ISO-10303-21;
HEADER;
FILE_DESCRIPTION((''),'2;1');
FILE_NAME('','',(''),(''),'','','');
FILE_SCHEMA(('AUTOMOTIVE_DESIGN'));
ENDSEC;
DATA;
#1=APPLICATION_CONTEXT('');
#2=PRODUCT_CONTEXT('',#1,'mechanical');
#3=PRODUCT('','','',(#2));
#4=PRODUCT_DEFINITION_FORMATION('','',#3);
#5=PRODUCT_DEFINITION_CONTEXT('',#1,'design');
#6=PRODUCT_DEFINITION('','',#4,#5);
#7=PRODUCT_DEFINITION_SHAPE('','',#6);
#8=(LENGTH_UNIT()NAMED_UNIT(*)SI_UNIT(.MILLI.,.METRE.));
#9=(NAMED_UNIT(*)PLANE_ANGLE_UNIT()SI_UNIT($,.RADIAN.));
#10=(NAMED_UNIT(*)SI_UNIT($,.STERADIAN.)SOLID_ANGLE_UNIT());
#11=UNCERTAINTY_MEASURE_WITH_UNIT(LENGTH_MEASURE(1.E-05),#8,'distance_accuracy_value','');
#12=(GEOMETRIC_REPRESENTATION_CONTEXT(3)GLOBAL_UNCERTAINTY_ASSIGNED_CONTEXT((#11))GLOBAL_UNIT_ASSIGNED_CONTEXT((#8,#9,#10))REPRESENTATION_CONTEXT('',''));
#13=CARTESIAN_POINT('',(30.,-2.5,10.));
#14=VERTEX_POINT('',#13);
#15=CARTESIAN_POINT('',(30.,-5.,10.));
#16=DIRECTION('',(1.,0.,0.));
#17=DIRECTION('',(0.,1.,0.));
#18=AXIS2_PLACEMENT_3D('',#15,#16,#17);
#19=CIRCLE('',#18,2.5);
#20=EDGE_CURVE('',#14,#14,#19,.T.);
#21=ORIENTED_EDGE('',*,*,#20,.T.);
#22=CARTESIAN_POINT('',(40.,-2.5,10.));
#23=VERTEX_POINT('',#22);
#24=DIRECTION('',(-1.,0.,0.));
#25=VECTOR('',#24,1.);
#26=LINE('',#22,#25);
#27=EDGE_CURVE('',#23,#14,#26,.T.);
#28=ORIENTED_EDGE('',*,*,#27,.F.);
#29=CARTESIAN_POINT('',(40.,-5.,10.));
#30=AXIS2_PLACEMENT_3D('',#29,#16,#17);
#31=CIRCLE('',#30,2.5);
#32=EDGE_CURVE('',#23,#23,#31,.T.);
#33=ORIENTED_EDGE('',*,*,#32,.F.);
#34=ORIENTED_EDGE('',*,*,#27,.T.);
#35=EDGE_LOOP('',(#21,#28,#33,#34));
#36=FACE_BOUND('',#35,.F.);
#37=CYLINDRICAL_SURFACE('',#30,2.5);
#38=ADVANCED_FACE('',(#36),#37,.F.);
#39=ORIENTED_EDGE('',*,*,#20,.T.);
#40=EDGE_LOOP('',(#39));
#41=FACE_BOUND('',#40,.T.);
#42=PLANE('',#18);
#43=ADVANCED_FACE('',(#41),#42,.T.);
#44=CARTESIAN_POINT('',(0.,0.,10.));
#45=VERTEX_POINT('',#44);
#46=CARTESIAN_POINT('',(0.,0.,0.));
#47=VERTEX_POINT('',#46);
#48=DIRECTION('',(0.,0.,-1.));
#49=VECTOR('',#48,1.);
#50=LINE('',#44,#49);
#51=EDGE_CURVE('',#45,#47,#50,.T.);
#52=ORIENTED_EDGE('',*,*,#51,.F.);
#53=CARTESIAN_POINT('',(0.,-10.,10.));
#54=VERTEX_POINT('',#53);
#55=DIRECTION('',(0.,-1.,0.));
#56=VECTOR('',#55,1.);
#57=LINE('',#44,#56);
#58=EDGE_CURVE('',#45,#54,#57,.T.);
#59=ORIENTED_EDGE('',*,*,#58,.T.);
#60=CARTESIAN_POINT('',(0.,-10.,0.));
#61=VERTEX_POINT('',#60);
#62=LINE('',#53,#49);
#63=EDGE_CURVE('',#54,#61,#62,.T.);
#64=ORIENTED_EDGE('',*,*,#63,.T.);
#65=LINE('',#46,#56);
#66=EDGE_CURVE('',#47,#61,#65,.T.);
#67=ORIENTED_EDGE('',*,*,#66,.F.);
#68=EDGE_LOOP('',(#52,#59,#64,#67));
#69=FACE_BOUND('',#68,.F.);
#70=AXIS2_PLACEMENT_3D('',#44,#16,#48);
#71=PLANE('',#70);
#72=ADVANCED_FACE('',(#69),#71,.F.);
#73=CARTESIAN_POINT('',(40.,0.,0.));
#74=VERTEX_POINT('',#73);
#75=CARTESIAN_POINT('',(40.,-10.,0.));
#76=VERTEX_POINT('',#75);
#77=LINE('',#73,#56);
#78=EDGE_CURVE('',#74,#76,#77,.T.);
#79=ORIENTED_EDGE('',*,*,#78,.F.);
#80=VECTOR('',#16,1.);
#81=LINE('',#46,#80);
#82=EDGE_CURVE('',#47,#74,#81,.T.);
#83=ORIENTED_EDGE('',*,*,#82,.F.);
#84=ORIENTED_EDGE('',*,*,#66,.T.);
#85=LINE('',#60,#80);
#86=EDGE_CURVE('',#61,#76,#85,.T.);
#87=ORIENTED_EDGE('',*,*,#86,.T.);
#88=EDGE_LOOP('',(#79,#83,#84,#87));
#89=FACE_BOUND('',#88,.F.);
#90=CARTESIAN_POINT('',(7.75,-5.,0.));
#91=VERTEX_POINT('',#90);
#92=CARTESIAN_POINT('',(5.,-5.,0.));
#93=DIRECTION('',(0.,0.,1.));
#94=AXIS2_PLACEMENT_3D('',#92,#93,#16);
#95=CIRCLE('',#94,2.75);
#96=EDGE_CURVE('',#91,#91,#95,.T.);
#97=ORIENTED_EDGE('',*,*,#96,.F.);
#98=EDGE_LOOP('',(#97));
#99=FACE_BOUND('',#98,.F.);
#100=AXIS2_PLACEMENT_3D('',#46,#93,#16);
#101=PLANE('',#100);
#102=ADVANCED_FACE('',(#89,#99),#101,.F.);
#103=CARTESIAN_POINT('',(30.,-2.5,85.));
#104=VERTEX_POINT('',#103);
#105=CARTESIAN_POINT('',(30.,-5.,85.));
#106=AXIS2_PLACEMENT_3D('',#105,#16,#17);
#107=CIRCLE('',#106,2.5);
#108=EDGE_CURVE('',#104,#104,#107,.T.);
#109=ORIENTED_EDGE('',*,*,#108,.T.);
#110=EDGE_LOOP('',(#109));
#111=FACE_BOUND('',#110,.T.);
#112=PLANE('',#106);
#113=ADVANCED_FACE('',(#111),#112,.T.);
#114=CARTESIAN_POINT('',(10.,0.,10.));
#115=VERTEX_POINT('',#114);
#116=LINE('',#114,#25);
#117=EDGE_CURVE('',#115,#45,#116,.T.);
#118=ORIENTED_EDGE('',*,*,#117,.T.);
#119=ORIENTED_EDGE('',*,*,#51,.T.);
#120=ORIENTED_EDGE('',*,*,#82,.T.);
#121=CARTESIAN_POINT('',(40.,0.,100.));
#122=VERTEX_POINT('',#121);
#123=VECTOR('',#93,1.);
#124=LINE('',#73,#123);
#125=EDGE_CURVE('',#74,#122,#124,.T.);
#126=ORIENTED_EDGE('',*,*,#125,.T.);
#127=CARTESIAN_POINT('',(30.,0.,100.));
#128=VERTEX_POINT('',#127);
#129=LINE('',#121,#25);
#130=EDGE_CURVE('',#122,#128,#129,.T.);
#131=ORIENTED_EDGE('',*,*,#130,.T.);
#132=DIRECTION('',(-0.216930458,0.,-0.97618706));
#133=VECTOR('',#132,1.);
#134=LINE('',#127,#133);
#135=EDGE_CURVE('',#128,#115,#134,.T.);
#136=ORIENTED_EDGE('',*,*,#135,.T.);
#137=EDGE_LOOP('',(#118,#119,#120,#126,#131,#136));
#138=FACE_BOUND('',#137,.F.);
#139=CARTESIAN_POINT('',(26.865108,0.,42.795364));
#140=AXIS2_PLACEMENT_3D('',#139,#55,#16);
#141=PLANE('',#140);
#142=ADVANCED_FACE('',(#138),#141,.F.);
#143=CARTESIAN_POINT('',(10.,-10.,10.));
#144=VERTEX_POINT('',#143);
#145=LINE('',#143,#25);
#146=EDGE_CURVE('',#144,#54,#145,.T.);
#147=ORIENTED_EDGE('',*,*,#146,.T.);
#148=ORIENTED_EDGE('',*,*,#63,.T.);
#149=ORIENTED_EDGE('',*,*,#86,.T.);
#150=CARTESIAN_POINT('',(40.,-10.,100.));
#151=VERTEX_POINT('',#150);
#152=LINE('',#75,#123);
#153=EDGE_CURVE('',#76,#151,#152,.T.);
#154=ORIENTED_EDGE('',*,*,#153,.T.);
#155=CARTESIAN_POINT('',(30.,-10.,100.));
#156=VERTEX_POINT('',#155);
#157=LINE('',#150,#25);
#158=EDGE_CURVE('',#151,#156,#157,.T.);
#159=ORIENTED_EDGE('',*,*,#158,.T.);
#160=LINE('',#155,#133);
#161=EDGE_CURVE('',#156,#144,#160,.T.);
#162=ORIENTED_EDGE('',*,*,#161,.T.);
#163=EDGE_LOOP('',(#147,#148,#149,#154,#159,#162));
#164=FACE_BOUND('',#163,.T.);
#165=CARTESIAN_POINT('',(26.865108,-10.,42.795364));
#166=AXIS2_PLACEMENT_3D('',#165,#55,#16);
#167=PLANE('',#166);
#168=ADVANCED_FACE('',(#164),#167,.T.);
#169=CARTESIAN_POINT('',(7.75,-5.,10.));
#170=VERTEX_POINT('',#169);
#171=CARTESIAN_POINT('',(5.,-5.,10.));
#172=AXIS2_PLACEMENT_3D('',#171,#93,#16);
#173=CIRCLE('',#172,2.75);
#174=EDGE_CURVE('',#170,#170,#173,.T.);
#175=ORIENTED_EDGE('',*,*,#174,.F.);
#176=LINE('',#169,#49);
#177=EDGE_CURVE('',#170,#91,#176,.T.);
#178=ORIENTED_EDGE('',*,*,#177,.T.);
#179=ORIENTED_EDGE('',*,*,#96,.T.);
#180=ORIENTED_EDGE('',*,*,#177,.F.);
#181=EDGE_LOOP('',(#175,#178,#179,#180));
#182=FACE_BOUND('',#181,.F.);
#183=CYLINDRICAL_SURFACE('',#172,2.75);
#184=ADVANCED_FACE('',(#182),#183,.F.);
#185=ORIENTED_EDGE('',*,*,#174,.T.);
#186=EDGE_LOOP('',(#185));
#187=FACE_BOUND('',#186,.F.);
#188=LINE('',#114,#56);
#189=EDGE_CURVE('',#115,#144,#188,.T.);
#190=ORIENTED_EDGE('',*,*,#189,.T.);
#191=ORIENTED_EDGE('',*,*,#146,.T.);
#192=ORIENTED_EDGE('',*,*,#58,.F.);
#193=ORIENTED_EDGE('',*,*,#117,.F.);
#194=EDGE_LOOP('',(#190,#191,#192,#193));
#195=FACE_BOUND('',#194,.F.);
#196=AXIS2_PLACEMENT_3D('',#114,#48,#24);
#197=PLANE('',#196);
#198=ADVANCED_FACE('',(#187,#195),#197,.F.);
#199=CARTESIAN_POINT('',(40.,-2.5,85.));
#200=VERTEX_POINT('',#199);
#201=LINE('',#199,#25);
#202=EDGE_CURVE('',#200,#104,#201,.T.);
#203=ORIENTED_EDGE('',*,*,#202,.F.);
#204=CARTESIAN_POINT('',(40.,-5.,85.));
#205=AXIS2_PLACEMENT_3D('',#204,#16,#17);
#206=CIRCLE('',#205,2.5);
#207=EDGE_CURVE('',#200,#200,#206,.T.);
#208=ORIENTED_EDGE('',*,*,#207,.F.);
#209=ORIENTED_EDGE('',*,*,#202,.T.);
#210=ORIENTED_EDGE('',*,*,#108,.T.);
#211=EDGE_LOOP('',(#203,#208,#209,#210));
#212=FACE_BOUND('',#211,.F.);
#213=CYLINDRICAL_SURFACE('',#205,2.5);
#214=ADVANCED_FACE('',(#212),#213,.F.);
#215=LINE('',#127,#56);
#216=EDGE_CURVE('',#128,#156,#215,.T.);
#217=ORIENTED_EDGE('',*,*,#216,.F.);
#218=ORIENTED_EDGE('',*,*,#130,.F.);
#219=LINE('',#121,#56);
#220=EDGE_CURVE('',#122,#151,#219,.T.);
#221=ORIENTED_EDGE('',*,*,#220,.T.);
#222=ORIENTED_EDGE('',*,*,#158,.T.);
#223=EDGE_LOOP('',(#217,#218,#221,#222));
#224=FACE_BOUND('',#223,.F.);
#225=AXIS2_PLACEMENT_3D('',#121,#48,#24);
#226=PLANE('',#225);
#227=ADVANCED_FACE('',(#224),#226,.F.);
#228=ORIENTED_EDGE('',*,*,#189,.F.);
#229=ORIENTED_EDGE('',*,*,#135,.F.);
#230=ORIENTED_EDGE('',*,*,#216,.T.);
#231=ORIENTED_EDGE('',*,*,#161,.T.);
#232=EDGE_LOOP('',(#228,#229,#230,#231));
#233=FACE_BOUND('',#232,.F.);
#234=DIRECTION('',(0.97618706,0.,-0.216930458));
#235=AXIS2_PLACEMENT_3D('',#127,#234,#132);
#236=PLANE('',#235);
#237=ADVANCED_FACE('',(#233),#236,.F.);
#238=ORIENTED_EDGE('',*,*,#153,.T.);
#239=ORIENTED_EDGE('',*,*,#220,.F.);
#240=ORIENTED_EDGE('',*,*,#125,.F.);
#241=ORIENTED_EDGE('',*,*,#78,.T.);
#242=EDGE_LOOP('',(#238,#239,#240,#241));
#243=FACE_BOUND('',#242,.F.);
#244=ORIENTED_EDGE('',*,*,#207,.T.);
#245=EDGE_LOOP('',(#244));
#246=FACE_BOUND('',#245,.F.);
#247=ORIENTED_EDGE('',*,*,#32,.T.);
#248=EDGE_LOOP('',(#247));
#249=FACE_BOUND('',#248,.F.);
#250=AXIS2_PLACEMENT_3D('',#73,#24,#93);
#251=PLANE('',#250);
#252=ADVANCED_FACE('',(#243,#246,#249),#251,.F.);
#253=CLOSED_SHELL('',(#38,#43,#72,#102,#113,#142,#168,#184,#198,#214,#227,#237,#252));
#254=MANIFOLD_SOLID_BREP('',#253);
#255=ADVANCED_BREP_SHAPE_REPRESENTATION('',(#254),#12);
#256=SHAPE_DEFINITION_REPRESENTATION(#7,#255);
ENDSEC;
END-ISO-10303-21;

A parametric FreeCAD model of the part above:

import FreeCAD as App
import Part
import Sketcher

V = App.Vector
Q = App.Units.Quantity


def add_polygon(sketch, points):
    """Adds a closed chain of lines whose ends are joined by coincident constraints."""
    first, n = sketch.GeometryCount, len(points)
    for a, b in zip(points, points[1:] + points[:1]):
        sketch.addGeometry(Part.LineSegment(App.Vector(*a, 0), App.Vector(*b, 0)), False)
    for i in range(n):
        sketch.addConstraint(Sketcher.Constraint("Coincident", first + i, 2, first + (i + 1) % n, 1))

doc = App.newDocument("Part")
body = doc.addObject("PartDesign::Body", "Body")

sketch1 = body.newObject("Sketcher::SketchObject", "Sketch")
sketch1.AttachmentSupport = (doc.getObject("XZ_Plane"), [""])
sketch1.MapMode = "FlatFace"
add_polygon(sketch1, [(0, 10), (0, 0), (40, 0), (40, 100), (30, 100), (10, 10)])
sketch1.addConstraint([
    Sketcher.Constraint("Vertical", 0),
    Sketcher.Constraint("Horizontal", 1),
    Sketcher.Constraint("Vertical", 2),
    Sketcher.Constraint("Horizontal", 3),
    Sketcher.Constraint("Horizontal", 5),
    Sketcher.Constraint("Coincident", 0, 2, -1, 1),
    Sketcher.Constraint("Equal", 3, 5),
    Sketcher.Constraint("Equal", 5, 0),
    Sketcher.Constraint("DistanceX", 1, 1, 1, 2, Q("40 mm")),
    Sketcher.Constraint("DistanceX", 3, 2, 3, 1, Q("10 mm")),
    Sketcher.Constraint("DistanceY", 2, 1, 2, 2, Q("100 mm")),
])
pad1 = body.newObject("PartDesign::Pad", "Pad")
pad1.Profile = sketch1
pad1.Length = 10

sketch2 = body.newObject("Sketcher::SketchObject", "Sketch001")
sketch2.AttachmentSupport = (doc.getObject("XY_Plane"), [""])
sketch2.MapMode = "FlatFace"
sketch2.AttachmentOffset = App.Placement(V(0, 0, 10), App.Rotation())
sketch2.addGeometry(Part.Circle(V(5, -5, 0), V(0, 0, 1), 2.8), False)
sketch2.addConstraint([
    Sketcher.Constraint("Diameter", 0, Q("5.5 mm")),
    Sketcher.Constraint("DistanceX", -1, 1, 0, 3, Q("5 mm")),
    Sketcher.Constraint("DistanceY", 0, 3, -1, 1, Q("5 mm")),
])
pocket1 = body.newObject("PartDesign::Pocket", "Pocket")
pocket1.Profile = sketch2
pocket1.Length = 25

sketch3 = body.newObject("Sketcher::SketchObject", "Sketch002")
sketch3.AttachmentSupport = (doc.getObject("YZ_Plane"), [""])
sketch3.MapMode = "FlatFace"
sketch3.AttachmentOffset = App.Placement(V(0, 0, 40), App.Rotation())
sketch3.addGeometry([
    Part.Circle(V(-5, 85, 0), V(0, 0, 1), 2.5),
    Part.Circle(V(-5, 10, 0), V(0, 0, 1), 2.5),
], False)
sketch3.addConstraint([
    Sketcher.Constraint("Equal", 0, 1),
    Sketcher.Constraint("Vertical", 0, 3, 1, 3),
    Sketcher.Constraint("Diameter", 0, Q("5 mm")),
    Sketcher.Constraint("DistanceX", 0, 3, -1, 1, Q("5 mm")),
    Sketcher.Constraint("DistanceY", -1, 1, 0, 3, Q("85 mm")),
    Sketcher.Constraint("DistanceY", -1, 1, 1, 3, Q("10 mm")),
])
pocket2 = body.newObject("PartDesign::Pocket", "Pocket001")
pocket2.Profile = sketch3
pocket2.Length = 10

doc.recompute()
